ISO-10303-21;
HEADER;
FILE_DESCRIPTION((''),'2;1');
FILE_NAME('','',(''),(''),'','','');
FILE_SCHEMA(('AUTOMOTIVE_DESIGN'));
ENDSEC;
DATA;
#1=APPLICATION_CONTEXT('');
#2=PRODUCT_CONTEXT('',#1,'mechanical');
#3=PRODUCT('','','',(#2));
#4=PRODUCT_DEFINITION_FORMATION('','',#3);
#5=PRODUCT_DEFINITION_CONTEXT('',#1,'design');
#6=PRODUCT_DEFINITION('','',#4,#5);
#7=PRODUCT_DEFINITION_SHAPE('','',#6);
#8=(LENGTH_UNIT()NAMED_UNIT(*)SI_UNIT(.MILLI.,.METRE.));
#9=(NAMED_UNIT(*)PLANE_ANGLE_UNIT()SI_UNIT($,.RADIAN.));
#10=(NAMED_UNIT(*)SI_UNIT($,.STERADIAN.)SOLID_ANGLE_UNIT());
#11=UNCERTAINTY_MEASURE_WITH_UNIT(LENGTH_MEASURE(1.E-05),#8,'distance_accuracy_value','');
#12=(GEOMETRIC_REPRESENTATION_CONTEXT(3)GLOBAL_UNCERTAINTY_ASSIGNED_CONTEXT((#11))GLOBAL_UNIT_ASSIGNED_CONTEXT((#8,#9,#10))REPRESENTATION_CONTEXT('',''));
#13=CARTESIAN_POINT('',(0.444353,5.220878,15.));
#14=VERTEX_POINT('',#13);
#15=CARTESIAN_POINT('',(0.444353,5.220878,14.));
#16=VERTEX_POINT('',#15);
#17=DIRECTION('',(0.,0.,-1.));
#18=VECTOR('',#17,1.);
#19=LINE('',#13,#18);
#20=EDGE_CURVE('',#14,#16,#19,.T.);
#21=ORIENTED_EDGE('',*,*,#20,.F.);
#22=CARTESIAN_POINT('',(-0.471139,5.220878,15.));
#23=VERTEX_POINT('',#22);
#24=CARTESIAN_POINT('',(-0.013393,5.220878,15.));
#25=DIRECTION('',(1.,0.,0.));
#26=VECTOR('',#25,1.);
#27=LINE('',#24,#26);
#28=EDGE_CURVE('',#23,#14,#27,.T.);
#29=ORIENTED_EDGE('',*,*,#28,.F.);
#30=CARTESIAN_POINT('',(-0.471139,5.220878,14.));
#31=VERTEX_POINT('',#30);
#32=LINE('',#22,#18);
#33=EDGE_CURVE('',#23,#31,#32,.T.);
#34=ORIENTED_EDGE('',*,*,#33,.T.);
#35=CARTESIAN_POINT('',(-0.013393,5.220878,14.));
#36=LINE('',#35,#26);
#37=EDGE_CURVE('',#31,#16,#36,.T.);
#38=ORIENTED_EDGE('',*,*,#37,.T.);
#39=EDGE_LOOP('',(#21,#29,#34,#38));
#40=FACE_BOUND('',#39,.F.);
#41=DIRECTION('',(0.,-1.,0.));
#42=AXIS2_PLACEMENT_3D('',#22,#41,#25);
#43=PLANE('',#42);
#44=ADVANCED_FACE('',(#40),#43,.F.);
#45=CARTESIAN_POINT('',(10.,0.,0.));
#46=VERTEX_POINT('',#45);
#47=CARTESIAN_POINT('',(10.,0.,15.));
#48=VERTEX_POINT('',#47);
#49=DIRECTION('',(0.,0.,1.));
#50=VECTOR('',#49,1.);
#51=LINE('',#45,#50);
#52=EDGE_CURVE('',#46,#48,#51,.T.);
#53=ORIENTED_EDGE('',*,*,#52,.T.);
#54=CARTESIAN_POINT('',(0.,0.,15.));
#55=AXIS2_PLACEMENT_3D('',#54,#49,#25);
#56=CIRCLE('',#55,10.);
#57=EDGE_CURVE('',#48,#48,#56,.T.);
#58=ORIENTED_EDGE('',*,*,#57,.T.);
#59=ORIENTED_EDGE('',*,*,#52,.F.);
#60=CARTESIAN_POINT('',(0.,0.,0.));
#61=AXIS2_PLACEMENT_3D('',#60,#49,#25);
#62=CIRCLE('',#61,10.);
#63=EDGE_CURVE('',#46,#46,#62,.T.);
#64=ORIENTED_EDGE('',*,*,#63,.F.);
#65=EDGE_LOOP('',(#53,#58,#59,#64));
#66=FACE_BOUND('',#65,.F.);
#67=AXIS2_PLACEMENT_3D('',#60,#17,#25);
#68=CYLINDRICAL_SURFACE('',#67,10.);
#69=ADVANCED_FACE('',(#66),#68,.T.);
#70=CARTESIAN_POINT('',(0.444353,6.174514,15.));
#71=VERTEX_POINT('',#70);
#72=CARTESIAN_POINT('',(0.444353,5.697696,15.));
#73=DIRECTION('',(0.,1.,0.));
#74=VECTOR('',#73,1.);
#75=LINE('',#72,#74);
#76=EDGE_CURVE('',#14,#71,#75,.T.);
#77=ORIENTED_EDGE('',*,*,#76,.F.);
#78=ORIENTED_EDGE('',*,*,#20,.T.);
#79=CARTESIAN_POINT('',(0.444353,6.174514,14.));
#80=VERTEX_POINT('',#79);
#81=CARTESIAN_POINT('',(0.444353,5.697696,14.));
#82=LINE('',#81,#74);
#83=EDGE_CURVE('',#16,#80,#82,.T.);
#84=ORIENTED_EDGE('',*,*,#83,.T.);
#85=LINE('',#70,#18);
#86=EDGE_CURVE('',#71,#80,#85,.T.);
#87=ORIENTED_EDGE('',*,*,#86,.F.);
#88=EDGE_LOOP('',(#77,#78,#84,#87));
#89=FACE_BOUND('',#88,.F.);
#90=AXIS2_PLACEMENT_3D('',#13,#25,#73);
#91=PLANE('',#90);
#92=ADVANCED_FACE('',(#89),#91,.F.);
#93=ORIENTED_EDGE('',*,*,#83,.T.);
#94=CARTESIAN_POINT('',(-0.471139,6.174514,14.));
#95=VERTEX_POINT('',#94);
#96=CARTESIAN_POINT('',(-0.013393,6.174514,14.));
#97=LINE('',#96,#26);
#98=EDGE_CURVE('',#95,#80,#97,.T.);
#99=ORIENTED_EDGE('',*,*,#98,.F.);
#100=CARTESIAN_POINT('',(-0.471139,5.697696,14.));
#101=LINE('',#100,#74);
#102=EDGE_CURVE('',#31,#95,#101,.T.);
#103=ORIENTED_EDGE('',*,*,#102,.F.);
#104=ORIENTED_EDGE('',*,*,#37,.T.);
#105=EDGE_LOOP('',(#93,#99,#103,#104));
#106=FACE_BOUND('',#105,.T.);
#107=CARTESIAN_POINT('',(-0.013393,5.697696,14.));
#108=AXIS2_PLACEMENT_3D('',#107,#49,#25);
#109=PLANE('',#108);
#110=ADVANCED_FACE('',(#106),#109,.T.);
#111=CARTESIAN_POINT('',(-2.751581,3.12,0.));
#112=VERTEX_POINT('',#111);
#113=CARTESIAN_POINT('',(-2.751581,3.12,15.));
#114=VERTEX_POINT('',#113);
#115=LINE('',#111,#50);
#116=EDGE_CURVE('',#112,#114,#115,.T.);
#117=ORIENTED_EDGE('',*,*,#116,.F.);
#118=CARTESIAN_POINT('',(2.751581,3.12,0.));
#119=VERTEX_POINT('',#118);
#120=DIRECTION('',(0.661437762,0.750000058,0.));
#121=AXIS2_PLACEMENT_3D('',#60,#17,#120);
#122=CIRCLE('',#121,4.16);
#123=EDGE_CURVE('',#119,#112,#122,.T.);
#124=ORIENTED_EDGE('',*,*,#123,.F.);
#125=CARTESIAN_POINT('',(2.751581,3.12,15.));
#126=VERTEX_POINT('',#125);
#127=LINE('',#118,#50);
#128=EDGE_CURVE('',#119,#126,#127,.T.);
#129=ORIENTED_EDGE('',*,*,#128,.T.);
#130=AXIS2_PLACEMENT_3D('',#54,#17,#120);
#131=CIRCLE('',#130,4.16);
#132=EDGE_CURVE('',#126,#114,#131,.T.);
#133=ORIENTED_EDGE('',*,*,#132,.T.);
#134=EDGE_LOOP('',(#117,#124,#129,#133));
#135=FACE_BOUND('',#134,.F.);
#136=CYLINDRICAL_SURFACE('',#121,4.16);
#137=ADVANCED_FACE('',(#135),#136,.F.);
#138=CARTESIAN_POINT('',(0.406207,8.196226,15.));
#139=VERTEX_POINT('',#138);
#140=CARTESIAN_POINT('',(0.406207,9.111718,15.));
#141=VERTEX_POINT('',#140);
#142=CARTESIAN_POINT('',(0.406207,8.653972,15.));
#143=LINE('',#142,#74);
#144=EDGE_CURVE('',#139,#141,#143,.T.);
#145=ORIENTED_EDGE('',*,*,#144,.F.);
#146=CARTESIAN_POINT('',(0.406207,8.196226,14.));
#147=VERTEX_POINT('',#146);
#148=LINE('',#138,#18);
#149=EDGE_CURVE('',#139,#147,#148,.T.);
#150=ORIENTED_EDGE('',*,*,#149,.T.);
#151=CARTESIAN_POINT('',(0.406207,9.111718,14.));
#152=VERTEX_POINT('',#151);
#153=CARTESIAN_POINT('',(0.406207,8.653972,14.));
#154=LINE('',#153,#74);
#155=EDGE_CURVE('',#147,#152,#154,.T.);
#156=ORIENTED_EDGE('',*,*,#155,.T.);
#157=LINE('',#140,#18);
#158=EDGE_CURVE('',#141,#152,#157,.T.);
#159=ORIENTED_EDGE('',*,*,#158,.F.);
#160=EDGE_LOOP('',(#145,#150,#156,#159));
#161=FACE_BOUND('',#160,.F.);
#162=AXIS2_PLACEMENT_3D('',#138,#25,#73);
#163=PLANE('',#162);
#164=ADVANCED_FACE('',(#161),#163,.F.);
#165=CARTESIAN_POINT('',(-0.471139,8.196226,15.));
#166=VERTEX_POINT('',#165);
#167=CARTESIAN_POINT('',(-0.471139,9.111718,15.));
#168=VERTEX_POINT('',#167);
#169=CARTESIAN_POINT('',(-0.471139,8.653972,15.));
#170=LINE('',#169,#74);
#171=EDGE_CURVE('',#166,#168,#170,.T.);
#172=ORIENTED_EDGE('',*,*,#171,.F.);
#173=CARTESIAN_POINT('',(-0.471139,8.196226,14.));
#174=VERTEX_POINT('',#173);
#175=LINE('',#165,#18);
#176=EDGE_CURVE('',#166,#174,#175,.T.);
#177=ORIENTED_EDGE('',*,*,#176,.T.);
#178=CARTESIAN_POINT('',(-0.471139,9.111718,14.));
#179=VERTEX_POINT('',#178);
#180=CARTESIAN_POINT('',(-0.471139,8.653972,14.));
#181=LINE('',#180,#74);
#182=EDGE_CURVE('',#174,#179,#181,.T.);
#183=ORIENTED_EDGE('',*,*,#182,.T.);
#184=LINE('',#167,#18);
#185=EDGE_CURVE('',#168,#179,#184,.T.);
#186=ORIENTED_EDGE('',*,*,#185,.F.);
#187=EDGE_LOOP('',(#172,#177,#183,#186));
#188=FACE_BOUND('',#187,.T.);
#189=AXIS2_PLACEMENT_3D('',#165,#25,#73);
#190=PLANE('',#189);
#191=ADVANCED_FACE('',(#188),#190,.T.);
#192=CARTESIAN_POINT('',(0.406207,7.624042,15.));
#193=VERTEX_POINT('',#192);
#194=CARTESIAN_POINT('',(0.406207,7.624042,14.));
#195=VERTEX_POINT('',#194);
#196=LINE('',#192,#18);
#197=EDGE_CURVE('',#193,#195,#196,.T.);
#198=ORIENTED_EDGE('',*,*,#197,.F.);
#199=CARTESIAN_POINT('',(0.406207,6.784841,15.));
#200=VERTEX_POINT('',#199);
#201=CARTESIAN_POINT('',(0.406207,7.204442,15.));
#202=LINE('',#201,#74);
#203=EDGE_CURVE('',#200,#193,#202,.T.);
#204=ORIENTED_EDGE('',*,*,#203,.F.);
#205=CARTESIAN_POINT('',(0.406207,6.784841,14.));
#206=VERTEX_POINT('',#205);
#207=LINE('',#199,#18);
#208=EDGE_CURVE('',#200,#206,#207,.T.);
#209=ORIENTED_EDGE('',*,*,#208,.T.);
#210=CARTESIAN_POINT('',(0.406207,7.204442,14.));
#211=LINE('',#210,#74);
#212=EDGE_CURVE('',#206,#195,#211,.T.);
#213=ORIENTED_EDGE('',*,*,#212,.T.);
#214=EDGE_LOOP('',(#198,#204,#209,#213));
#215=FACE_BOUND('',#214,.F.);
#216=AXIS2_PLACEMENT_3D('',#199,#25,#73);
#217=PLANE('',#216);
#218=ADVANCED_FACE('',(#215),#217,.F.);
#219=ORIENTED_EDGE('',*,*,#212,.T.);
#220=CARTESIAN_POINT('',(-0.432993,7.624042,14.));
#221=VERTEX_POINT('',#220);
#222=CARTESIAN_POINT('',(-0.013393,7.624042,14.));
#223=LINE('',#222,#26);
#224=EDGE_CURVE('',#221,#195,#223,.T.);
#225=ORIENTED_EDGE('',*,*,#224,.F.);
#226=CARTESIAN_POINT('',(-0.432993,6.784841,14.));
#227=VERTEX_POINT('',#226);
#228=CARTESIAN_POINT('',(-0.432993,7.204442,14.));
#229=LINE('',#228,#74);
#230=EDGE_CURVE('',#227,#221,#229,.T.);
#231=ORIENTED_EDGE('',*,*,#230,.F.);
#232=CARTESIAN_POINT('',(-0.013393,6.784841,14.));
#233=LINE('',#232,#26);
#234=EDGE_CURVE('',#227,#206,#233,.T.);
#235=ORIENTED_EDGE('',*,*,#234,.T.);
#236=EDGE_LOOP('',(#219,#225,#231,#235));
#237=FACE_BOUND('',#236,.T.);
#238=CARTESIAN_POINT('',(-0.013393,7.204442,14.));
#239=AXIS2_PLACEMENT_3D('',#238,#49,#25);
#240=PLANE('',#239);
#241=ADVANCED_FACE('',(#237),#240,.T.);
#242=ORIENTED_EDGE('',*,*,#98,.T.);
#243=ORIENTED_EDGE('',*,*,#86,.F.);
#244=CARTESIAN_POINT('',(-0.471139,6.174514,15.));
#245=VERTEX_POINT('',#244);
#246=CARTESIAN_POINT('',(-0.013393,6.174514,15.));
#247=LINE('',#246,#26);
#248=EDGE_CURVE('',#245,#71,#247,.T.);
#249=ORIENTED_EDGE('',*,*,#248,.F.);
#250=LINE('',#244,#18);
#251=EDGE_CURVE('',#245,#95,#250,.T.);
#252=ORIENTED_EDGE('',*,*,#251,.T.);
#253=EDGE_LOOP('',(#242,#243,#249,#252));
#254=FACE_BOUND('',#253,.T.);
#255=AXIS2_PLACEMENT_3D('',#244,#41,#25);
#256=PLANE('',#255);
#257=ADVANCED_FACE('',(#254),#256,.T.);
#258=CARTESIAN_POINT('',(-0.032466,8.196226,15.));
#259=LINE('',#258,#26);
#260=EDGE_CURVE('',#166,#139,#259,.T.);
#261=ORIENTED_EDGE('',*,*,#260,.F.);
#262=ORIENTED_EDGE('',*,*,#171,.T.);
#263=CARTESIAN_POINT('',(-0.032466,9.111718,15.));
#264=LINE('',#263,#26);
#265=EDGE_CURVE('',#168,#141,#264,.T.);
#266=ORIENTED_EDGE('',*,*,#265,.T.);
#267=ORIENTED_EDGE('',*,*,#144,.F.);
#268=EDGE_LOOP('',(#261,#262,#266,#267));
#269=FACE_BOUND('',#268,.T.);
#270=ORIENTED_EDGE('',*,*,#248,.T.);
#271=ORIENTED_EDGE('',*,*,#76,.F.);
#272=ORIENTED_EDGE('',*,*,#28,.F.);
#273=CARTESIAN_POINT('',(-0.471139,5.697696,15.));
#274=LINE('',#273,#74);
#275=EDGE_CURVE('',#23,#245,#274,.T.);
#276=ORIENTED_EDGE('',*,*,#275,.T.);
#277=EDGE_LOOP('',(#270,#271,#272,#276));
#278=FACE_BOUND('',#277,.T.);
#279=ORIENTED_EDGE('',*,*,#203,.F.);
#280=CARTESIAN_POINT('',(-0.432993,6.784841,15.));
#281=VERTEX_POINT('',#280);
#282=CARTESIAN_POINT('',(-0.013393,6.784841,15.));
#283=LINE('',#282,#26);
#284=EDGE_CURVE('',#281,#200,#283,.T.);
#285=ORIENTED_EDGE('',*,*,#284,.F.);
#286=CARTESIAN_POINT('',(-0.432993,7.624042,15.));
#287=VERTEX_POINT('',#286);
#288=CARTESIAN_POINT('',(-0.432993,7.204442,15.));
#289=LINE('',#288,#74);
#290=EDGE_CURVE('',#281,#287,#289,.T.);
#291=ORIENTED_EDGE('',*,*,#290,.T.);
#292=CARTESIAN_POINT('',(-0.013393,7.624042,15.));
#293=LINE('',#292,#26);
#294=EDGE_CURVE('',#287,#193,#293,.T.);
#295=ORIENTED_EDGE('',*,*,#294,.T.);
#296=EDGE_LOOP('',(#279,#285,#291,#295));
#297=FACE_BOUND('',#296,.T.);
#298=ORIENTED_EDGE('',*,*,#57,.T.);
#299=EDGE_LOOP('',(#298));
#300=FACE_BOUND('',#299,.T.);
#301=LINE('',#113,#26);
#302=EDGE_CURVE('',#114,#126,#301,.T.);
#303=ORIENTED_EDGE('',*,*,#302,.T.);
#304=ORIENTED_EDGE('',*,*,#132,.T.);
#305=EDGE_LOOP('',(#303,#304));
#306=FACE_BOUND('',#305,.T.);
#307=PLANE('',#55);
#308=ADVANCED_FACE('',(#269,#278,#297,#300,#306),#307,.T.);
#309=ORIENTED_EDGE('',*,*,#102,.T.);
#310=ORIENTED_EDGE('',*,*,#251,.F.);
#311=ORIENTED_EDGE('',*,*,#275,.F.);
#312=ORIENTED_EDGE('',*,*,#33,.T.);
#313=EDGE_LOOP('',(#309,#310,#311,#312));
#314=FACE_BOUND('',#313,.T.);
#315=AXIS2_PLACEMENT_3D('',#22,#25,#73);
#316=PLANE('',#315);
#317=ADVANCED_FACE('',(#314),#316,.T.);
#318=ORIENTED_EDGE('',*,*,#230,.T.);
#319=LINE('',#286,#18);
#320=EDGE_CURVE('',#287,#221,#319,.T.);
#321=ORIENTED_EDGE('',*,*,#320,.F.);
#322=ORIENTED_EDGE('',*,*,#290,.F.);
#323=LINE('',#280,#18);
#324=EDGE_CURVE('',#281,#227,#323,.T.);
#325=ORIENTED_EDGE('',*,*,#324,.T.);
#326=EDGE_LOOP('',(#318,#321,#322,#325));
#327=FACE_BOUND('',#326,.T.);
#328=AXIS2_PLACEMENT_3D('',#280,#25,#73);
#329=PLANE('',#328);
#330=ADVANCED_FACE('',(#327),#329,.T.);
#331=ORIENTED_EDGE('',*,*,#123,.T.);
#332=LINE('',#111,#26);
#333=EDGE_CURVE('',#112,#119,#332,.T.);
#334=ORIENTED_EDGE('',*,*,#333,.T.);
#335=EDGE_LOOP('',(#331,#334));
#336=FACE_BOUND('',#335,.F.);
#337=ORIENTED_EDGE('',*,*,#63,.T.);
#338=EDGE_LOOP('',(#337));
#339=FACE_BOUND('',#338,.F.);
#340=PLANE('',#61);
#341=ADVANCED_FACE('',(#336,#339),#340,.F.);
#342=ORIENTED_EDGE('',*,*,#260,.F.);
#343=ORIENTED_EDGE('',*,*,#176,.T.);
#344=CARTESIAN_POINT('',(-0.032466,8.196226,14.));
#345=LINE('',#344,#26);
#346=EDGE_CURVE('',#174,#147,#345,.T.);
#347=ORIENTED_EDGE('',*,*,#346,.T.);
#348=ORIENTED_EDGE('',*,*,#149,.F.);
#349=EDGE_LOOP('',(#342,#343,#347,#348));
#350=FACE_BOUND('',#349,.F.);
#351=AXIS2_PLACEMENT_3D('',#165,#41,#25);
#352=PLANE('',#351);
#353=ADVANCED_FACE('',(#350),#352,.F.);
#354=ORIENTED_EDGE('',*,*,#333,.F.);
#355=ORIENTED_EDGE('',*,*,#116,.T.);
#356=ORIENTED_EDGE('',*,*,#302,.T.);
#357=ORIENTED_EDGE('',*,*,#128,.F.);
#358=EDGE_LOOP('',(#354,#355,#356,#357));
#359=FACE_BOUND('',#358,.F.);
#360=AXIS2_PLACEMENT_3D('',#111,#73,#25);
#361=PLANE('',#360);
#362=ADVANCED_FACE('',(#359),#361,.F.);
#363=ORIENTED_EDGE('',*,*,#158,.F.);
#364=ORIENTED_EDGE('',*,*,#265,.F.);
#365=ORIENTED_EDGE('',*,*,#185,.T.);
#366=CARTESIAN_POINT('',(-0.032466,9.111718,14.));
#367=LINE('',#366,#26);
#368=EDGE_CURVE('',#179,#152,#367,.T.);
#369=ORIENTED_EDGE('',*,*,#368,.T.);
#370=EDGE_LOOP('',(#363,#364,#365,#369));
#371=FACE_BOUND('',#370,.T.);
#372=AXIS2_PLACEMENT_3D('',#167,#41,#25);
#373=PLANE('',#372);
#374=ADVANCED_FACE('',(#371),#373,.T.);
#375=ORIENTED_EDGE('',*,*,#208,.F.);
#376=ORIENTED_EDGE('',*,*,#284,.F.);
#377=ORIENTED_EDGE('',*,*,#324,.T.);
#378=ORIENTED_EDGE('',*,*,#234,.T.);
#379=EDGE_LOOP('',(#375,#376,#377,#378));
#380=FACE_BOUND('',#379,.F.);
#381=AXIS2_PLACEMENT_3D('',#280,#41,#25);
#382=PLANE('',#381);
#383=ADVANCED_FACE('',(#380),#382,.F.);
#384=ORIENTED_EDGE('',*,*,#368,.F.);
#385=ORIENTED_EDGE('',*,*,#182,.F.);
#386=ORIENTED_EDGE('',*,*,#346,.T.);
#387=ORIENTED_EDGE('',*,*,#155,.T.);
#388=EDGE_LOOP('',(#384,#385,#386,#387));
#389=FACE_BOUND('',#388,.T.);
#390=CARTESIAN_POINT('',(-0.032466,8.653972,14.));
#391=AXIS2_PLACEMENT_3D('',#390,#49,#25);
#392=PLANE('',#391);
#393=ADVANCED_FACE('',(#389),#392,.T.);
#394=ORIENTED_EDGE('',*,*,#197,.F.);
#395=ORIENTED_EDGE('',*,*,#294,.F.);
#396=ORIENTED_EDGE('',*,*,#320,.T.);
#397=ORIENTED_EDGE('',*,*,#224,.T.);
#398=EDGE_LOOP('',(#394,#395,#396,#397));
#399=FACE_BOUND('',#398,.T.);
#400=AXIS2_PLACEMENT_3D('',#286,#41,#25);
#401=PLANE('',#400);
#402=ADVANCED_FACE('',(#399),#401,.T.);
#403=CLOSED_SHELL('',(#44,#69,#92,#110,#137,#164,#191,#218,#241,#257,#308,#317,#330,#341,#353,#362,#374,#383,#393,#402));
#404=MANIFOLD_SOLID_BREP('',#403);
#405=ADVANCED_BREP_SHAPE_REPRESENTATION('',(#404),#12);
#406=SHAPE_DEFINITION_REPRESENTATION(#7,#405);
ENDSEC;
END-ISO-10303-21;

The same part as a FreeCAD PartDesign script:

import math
import FreeCAD as App
import Part
import Sketcher
from FreeCAD import Vector


def add_polygon(sketch, points):
    """Adds a closed chain of lines whose ends are joined by coincident constraints."""
    first, n = sketch.GeometryCount, len(points)
    for a, b in zip(points, points[1:] + points[:1]):
        sketch.addGeometry(Part.LineSegment(App.Vector(*a, 0), App.Vector(*b, 0)), False)
    for i in range(n):
        sketch.addConstraint(Sketcher.Constraint("Coincident", first + i, 2, first + (i + 1) % n, 1))

doc = App.newDocument("Part")
body = doc.addObject("PartDesign::Body", "Body")

# Sketch on XY plane
sketch1 = body.newObject("Sketcher::SketchObject", "Sketch")
sketch1.AttachmentSupport = (doc.getObject("XY_Plane"), [""])
sketch1.MapMode = "FlatFace"
sketch1.addGeometry([
    Part.Circle(Vector(0, 0, 0), Vector(0, 0, 1), 10),
    Part.LineSegment(Vector(-2.8, 3.1, 0), Vector(2.8, 3.1, 0)),
    Part.ArcOfCircle(Part.Circle(Vector(0, 0, 0), Vector(0, 0, 1), 4.2), math.radians(131), math.radians(409)),
], False)
sketch1.addConstraint([
    Sketcher.Constraint("Coincident", 1, 1, 2, 1),
    Sketcher.Constraint("Coincident", 2, 2, 1, 2),
    Sketcher.Constraint("Horizontal", 1),
    Sketcher.Constraint("Coincident", 0, 3, -1, 1),
    Sketcher.Constraint("Coincident", 2, 3, -1, 1),
    Sketcher.Constraint("Diameter", 0, 20.0),
    Sketcher.Constraint("Radius", 2, 4.16),
    Sketcher.Constraint("DistanceY", -1, 1, 1, 1, 3.12),
])
pad1 = body.newObject("PartDesign::Pad", "Pad")
pad1.Profile = sketch1
pad1.Length = 15

# Sketch on XY plane
sketch2 = body.newObject("Sketcher::SketchObject", "Sketch001")
sketch2.AttachmentSupport = (doc.getObject("XY_Plane"), [""])
sketch2.MapMode = "FlatFace"
sketch2.AttachmentOffset = App.Placement(Vector(0, 0, 15), App.Rotation())
add_polygon(sketch2, [(-0.5, 9.1), (-0.5, 8.2), (0.4, 8.2), (0.4, 9.1)])  # lines 0-3
add_polygon(sketch2, [(-0.4, 7.6), (-0.4, 6.8), (0.4, 6.8), (0.4, 7.6)])  # lines 4-7
add_polygon(sketch2, [(-0.5, 6.2), (-0.5, 5.2), (0.4, 5.2), (0.4, 6.2)])  # lines 8-11
sketch2.addConstraint([
    Sketcher.Constraint("Vertical", 0),
    Sketcher.Constraint("Horizontal", 1),
    Sketcher.Constraint("Vertical", 2),
    Sketcher.Constraint("Horizontal", 3),
    Sketcher.Constraint("Vertical", 4),
    Sketcher.Constraint("Horizontal", 5),
    Sketcher.Constraint("Vertical", 6),
    Sketcher.Constraint("Horizontal", 7),
    Sketcher.Constraint("Vertical", 8),
    Sketcher.Constraint("Horizontal", 9),
    Sketcher.Constraint("Vertical", 10),
    Sketcher.Constraint("Horizontal", 11),
    Sketcher.Constraint("Vertical", 2, 2, 5, 2),
    Sketcher.Constraint("Vertical", 3, 2, 8, 2),
    Sketcher.Constraint("Equal", 11, 0),
    Sketcher.Constraint("Equal", 7, 4),
    Sketcher.Constraint("DistanceX", 5, 1, 5, 2, 0.839201),
    Sketcher.Constraint("DistanceX", 9, 1, 9, 2, 0.915492),
    Sketcher.Constraint("DistanceX", 1, 1, 1, 2, 0.877347),
    Sketcher.Constraint("DistanceY", 8, 2, 8, 1, 0.953637),
    Sketcher.Constraint("DistanceX", 0, 2, -1, 1, 0.471139),
    Sketcher.Constraint("DistanceY", -1, 1, 4, 2, 6.784841),
    Sketcher.Constraint("DistanceY", 8, 2, 0, 2, 2.975348),
    Sketcher.Constraint("DistanceY", -1, 1, 0, 2, 8.196226),
])
pocket1 = body.newObject("PartDesign::Pocket", "Pocket")
pocket1.Profile = sketch2
pocket1.Length = 1

doc.recompute()
